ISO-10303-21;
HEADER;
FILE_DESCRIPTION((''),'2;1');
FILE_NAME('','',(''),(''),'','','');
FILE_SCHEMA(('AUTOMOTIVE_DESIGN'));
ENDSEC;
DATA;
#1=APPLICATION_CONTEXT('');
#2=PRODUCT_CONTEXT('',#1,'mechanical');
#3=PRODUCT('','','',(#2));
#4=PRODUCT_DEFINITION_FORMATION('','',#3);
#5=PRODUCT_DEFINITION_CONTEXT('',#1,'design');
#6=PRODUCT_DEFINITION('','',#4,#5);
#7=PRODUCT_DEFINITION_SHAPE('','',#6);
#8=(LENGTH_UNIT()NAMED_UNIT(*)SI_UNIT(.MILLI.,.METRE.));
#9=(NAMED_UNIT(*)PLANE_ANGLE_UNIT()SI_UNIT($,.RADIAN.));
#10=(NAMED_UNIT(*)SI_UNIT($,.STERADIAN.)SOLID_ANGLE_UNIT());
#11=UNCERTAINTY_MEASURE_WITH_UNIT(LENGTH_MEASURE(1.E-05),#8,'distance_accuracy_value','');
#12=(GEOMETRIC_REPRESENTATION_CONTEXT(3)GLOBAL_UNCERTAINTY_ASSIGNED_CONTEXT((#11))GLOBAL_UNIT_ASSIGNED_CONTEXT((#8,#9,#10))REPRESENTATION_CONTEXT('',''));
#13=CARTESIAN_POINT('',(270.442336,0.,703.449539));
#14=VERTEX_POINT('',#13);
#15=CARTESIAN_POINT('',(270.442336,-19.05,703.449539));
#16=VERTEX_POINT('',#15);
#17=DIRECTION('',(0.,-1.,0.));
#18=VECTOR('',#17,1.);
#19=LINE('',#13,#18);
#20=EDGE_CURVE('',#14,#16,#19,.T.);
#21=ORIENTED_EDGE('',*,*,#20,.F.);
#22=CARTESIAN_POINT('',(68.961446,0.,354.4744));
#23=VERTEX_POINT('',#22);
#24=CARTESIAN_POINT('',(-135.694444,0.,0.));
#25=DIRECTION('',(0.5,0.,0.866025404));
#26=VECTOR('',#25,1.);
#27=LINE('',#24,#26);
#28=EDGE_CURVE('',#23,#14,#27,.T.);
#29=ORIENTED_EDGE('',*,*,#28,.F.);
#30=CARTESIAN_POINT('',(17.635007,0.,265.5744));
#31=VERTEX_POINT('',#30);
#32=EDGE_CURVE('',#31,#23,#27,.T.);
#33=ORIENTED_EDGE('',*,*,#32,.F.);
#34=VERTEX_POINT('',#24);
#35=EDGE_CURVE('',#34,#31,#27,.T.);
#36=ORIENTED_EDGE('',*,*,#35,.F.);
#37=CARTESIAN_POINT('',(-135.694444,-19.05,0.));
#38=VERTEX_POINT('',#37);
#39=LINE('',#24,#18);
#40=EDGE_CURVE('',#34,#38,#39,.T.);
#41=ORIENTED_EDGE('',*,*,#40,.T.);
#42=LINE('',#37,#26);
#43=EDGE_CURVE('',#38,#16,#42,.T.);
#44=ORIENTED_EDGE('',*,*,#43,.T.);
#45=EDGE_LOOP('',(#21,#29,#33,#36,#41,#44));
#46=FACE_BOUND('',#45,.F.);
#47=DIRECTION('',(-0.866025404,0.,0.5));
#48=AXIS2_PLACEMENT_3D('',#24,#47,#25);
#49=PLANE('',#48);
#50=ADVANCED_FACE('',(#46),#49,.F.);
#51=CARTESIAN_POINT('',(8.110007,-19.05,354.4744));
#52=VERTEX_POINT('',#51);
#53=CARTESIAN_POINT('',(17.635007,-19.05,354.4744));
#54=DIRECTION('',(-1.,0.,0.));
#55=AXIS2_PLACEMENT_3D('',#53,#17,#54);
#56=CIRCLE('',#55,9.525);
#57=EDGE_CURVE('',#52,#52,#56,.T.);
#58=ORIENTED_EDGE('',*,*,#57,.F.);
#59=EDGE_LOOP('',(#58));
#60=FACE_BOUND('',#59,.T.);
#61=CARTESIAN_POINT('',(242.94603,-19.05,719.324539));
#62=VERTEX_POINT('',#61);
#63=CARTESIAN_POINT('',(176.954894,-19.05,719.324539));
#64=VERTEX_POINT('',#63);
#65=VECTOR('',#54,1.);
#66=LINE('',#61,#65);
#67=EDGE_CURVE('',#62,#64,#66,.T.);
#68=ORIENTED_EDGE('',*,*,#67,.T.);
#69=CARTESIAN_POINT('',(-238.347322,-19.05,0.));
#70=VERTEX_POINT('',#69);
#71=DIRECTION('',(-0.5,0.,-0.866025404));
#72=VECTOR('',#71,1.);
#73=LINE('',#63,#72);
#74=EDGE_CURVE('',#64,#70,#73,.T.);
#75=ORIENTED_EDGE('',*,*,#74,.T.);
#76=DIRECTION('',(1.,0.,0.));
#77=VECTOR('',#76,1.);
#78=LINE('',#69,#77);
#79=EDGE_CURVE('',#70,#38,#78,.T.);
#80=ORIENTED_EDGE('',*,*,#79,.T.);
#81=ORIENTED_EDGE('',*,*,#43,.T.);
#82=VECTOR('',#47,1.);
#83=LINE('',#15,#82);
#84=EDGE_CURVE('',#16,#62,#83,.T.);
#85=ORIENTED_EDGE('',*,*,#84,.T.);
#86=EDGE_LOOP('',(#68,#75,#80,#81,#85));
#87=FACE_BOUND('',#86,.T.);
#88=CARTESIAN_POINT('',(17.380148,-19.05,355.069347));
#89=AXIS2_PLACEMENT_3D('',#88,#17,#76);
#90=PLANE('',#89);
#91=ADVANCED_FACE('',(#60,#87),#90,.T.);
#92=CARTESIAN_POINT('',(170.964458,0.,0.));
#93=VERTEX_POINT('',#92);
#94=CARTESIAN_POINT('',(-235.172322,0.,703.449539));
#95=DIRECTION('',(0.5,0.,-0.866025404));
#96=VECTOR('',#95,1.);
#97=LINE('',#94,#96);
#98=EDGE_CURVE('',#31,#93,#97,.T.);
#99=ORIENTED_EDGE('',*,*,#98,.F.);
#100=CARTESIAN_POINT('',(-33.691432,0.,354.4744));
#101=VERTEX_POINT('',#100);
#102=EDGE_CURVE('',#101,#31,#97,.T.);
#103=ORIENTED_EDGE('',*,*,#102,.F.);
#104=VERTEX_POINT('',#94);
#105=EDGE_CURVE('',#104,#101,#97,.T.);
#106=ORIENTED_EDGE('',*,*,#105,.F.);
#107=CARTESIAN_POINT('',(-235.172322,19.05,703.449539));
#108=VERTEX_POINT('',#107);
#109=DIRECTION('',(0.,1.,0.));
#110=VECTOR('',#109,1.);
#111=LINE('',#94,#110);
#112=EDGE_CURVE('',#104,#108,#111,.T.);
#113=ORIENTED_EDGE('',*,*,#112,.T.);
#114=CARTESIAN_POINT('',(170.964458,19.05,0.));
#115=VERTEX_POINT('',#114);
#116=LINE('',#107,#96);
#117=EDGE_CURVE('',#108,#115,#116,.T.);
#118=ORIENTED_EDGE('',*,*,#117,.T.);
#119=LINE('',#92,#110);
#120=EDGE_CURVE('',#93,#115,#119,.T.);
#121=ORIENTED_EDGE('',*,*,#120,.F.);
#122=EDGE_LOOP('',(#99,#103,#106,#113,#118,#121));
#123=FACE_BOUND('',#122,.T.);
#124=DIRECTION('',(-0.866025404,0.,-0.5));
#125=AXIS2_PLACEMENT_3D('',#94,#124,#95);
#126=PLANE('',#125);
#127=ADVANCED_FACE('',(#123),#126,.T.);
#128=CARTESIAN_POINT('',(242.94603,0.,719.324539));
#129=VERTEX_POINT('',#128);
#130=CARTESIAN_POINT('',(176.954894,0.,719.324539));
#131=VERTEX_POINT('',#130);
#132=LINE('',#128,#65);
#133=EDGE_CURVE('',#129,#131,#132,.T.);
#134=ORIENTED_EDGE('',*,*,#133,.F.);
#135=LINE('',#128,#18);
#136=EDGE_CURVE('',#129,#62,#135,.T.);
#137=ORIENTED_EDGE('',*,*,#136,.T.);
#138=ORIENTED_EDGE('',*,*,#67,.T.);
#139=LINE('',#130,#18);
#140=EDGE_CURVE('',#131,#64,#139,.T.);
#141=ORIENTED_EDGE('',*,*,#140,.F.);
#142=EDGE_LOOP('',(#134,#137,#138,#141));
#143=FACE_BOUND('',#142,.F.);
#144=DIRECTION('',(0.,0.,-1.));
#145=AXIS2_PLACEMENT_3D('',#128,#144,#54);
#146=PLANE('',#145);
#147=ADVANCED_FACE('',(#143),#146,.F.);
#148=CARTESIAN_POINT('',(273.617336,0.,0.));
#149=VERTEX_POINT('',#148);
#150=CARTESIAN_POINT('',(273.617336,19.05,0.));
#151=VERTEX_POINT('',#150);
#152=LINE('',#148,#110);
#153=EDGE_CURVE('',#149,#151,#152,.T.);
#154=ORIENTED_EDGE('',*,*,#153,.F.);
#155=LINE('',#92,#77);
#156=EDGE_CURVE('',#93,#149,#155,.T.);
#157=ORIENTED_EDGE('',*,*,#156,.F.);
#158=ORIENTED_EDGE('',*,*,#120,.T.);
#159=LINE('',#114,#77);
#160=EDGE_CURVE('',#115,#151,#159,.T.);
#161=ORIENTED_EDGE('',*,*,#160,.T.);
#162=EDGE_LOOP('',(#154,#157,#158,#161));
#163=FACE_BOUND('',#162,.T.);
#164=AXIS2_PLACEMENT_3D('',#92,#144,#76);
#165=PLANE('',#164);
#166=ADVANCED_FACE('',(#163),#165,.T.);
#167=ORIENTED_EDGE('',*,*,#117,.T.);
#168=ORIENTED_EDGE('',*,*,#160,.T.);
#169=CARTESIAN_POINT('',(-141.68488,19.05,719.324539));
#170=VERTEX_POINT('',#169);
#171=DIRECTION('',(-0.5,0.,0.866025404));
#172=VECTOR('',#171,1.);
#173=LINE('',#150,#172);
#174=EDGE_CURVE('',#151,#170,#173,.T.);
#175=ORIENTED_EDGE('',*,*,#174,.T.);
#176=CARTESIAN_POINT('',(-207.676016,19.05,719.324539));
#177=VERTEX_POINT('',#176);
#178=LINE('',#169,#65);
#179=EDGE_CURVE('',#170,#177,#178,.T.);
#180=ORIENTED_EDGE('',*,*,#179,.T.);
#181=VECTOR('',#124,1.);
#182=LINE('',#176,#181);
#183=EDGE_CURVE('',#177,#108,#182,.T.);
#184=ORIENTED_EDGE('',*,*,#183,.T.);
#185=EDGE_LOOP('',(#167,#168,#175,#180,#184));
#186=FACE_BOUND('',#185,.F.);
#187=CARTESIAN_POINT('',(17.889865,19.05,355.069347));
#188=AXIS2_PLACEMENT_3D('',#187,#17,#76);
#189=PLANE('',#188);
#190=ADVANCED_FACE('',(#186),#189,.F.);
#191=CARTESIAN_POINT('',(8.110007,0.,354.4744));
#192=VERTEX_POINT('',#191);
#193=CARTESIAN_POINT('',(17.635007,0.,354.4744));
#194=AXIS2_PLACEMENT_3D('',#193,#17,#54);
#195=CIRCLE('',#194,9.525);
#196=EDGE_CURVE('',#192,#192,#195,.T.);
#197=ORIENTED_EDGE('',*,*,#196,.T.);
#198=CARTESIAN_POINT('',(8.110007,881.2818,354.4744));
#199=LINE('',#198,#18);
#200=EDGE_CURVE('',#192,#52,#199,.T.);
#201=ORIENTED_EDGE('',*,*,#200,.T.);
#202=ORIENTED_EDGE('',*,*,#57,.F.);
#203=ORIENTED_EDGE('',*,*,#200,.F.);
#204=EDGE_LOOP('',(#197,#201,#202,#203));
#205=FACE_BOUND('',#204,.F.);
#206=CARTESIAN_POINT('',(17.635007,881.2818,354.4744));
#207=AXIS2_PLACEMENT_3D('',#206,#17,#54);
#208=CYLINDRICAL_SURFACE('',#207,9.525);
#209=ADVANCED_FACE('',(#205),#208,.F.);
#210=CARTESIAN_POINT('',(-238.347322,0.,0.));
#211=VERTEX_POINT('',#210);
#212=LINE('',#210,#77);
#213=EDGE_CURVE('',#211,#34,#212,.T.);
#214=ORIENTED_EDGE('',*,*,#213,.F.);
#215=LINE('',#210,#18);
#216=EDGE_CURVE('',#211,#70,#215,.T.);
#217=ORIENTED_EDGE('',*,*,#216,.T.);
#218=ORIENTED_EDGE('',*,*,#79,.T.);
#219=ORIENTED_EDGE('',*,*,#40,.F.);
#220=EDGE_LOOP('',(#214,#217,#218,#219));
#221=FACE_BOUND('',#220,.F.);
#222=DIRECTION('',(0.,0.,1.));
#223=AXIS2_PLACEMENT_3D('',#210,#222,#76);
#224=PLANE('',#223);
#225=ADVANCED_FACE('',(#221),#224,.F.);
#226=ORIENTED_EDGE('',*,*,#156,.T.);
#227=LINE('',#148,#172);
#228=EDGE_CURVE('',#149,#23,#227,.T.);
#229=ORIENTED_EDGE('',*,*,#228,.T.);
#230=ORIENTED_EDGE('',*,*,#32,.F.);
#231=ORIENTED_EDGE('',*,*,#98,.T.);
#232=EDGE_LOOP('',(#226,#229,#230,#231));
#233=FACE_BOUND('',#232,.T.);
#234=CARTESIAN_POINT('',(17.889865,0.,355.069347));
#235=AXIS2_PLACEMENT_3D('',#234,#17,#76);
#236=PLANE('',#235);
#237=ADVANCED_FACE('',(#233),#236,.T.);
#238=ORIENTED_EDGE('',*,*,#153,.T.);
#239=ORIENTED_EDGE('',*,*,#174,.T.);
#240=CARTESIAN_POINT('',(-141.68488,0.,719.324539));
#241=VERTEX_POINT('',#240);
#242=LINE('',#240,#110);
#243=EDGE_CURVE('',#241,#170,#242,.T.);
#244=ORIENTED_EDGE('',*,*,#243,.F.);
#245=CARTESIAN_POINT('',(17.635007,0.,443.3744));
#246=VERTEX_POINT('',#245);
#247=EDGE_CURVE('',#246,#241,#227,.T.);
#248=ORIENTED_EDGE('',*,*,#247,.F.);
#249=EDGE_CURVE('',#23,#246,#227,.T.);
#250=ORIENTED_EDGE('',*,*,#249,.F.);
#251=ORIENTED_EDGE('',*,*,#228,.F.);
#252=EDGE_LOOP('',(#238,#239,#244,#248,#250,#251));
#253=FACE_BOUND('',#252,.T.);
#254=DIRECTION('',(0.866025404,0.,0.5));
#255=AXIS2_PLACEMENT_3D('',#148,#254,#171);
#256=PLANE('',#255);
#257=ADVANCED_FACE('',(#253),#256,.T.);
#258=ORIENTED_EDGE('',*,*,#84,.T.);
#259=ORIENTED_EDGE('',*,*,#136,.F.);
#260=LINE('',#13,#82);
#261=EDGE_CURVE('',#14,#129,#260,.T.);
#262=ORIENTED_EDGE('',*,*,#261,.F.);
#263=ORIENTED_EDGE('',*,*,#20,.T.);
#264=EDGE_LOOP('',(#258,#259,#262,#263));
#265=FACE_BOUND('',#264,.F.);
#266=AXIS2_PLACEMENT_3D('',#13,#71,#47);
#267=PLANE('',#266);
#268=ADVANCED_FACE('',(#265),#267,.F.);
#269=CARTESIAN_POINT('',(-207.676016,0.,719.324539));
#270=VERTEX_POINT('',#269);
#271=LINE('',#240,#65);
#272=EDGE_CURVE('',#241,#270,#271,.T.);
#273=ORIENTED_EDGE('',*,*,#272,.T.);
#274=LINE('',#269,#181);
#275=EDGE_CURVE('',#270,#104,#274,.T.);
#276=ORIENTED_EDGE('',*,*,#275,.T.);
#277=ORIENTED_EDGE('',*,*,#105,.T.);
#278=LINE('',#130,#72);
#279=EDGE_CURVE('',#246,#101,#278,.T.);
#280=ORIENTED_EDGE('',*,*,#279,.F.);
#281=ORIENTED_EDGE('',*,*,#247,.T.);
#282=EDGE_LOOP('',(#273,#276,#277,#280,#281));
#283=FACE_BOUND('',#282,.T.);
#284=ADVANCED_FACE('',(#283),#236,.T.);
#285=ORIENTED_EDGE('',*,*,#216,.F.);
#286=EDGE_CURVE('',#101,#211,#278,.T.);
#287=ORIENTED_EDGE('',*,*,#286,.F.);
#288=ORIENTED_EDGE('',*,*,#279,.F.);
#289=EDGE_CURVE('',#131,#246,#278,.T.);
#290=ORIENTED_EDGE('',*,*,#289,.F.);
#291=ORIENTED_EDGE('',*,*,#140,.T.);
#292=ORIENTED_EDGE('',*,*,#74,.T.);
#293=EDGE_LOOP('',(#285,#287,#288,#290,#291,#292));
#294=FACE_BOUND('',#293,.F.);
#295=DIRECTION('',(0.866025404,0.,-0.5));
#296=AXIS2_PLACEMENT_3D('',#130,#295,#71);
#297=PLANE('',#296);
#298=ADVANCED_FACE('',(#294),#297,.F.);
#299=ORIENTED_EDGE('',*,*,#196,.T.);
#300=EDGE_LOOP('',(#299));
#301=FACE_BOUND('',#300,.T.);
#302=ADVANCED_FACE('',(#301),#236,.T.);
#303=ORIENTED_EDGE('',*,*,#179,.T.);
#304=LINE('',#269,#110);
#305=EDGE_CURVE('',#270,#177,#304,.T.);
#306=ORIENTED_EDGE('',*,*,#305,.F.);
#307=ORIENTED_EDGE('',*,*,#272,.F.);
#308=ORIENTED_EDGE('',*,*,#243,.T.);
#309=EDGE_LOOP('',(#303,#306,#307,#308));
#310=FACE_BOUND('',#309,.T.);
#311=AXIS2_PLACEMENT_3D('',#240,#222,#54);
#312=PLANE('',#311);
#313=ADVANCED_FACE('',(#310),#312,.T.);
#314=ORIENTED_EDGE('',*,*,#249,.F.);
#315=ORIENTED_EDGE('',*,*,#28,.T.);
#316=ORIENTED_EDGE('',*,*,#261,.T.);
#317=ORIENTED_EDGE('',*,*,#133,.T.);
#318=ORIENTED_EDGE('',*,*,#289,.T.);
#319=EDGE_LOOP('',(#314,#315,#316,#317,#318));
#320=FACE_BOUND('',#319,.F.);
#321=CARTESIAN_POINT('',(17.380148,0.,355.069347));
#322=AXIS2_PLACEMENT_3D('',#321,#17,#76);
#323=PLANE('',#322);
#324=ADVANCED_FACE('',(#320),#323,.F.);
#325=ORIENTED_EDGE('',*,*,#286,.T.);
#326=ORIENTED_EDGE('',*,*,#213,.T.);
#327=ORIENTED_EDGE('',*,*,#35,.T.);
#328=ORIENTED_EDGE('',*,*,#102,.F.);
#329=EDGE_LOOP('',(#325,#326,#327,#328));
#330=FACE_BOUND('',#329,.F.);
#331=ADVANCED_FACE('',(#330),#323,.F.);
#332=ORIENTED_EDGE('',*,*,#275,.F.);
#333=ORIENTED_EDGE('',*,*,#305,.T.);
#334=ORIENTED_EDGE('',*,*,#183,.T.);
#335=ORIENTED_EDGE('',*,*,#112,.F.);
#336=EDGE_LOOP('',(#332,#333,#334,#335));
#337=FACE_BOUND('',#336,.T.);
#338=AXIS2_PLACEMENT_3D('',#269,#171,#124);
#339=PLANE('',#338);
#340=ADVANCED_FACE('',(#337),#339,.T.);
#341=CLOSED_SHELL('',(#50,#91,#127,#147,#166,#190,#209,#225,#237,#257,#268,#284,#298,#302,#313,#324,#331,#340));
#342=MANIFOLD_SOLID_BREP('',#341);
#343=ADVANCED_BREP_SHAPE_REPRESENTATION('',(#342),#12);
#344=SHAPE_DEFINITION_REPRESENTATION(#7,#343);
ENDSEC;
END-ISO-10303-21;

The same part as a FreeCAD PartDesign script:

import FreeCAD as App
import Part
import Sketcher

V = App.Vector
Q = App.Units.Quantity

doc = App.newDocument("Part")
body = doc.addObject("PartDesign::Body", "Body")

# Sketch on XZ plane
sketch1 = body.newObject("Sketcher::SketchObject", "Sketch")
sketch1.AttachmentSupport = (doc.getObject("XZ_Plane"), [""])
sketch1.MapMode = "FlatFace"
sketch1.addGeometry(Part.LineSegment(V(177, 719, 0), V(-238, 0, 0)), False)
sketch1.addGeometry(Part.LineSegment(V(-238, 0, 0), V(-136, 0, 0)), False)
sketch1.addGeometry(Part.LineSegment(V(-136, 0, 0), V(270, 703, 0)), False)
sketch1.addGeometry(Part.LineSegment(V(270, 703, 0), V(243, 719, 0)), False)
sketch1.addGeometry(Part.LineSegment(V(243, 719, 0), V(177, 719, 0)), False)
sketch1.addConstraint(Sketcher.Constraint("Coincident", 0, 2, 1, 1))
sketch1.addConstraint(Sketcher.Constraint("Coincident", 1, 2, 2, 1))
sketch1.addConstraint(Sketcher.Constraint("Coincident", 2, 2, 3, 1))
sketch1.addConstraint(Sketcher.Constraint("Coincident", 3, 2, 4, 1))
sketch1.addConstraint(Sketcher.Constraint("Coincident", 4, 2, 0, 1))
sketch1.addConstraint(Sketcher.Constraint("Horizontal", 1))
sketch1.addConstraint(Sketcher.Constraint("Horizontal", 4))
sketch1.addConstraint(Sketcher.Constraint("PointOnObject", 0, 2, -1))
sketch1.addConstraint(Sketcher.Constraint("Parallel", 0, 2))
sketch1.addConstraint(Sketcher.Constraint("Perpendicular", 2, 3))
sketch1.addConstraint(Sketcher.Constraint("Angle", 0, Q("-120 deg")))
sketch1.addConstraint(Sketcher.Constraint("Distance", 3, Q("1.25 in")))
sketch1.addConstraint(Sketcher.Constraint("Distance", 2, Q("812.273561 mm")))
sketch1.addConstraint(Sketcher.Constraint("DistanceX", 1, 1, 1, 2, Q("102.652878 mm")))
sketch1.addConstraint(Sketcher.Constraint("DistanceX", -1, 1, 3, 2, Q("242.94603 mm")))
pad1 = body.newObject("PartDesign::Pad", "Pad")
pad1.Profile = sketch1
pad1.Length = Q("0.75 in")

# Sketch on XZ plane
sketch2 = body.newObject("Sketcher::SketchObject", "Sketch001")
sketch2.AttachmentSupport = (doc.getObject("XZ_Plane"), [""])
sketch2.MapMode = "FlatFace"
sketch2.addGeometry(Part.Circle(V(18, 354, 0), V(0, 0, 1), 10), False)
sketch2.addConstraint(Sketcher.Constraint("Diameter", 0, Q("0.75 in")))
sketch2.addConstraint(Sketcher.Constraint("DistanceY", -1, 1, 0, 3, Q("354.4744 mm")))
sketch2.addConstraint(Sketcher.Constraint("DistanceX", -1, 1, 0, 3, Q("17.635007 mm")))
doc.recompute()
hole = body.newObject("PartDesign::Hole", "Hole")
hole.Profile = sketch2
hole.ThreadType = "None"
hole.Diameter = Q("0.75 in")
hole.DepthType = "ThroughAll"
hole.Reversed = True

# Sketch on XZ plane
sketch3 = body.newObject("Sketcher::SketchObject", "Sketch002")
sketch3.AttachmentSupport = (doc.getObject("XZ_Plane"), [""])
sketch3.MapMode = "FlatFace"
sketch3.addGeometry(Part.LineSegment(V(171, 0, 0), V(274, 0, 0)), False)
sketch3.addGeometry(Part.LineSegment(V(274, 0, 0), V(-142, 719, 0)), False)
sketch3.addGeometry(Part.LineSegment(V(-142, 719, 0), V(-208, 719, 0)), False)
sketch3.addGeometry(Part.LineSegment(V(-208, 719, 0), V(-235, 703, 0)), False)
sketch3.addGeometry(Part.LineSegment(V(-235, 703, 0), V(171, 0, 0)), False)
sketch3.addConstraint(Sketcher.Constraint("Coincident", 0, 2, 1, 1))
sketch3.addConstraint(Sketcher.Constraint("Coincident", 1, 2, 2, 1))
sketch3.addConstraint(Sketcher.Constraint("Coincident", 2, 2, 3, 1))
sketch3.addConstraint(Sketcher.Constraint("Coincident", 3, 2, 4, 1))
sketch3.addConstraint(Sketcher.Constraint("Coincident", 4, 2, 0, 1))
sketch3.addConstraint(Sketcher.Constraint("Horizontal", 0))
sketch3.addConstraint(Sketcher.Constraint("Horizontal", 2))
sketch3.addConstraint(Sketcher.Constraint("PointOnObject", 0, 2, -1))
sketch3.addConstraint(Sketcher.Constraint("Perpendicular", 1, 3))
sketch3.addConstraint(Sketcher.Constraint("Perpendicular", 3, 4))
sketch3.addConstraint(Sketcher.Constraint("Angle", 1, Q("120 deg")))
sketch3.addConstraint(Sketcher.Constraint("Distance", 3, Q("1.25 in")))
sketch3.addConstraint(Sketcher.Constraint("Distance", 4, Q("812.273561 mm")))
sketch3.addConstraint(Sketcher.Constraint("DistanceX", 0, 1, 0, 2, Q("102.652878 mm")))
sketch3.addConstraint(Sketcher.Constraint("DistanceX", 1, 2, -1, 1, Q("141.68488 mm")))
pad2 = body.newObject("PartDesign::Pad", "Pad001")
pad2.Profile = sketch3
pad2.Length = Q("0.75 in")
pad2.Reversed = True

doc.recompute()
